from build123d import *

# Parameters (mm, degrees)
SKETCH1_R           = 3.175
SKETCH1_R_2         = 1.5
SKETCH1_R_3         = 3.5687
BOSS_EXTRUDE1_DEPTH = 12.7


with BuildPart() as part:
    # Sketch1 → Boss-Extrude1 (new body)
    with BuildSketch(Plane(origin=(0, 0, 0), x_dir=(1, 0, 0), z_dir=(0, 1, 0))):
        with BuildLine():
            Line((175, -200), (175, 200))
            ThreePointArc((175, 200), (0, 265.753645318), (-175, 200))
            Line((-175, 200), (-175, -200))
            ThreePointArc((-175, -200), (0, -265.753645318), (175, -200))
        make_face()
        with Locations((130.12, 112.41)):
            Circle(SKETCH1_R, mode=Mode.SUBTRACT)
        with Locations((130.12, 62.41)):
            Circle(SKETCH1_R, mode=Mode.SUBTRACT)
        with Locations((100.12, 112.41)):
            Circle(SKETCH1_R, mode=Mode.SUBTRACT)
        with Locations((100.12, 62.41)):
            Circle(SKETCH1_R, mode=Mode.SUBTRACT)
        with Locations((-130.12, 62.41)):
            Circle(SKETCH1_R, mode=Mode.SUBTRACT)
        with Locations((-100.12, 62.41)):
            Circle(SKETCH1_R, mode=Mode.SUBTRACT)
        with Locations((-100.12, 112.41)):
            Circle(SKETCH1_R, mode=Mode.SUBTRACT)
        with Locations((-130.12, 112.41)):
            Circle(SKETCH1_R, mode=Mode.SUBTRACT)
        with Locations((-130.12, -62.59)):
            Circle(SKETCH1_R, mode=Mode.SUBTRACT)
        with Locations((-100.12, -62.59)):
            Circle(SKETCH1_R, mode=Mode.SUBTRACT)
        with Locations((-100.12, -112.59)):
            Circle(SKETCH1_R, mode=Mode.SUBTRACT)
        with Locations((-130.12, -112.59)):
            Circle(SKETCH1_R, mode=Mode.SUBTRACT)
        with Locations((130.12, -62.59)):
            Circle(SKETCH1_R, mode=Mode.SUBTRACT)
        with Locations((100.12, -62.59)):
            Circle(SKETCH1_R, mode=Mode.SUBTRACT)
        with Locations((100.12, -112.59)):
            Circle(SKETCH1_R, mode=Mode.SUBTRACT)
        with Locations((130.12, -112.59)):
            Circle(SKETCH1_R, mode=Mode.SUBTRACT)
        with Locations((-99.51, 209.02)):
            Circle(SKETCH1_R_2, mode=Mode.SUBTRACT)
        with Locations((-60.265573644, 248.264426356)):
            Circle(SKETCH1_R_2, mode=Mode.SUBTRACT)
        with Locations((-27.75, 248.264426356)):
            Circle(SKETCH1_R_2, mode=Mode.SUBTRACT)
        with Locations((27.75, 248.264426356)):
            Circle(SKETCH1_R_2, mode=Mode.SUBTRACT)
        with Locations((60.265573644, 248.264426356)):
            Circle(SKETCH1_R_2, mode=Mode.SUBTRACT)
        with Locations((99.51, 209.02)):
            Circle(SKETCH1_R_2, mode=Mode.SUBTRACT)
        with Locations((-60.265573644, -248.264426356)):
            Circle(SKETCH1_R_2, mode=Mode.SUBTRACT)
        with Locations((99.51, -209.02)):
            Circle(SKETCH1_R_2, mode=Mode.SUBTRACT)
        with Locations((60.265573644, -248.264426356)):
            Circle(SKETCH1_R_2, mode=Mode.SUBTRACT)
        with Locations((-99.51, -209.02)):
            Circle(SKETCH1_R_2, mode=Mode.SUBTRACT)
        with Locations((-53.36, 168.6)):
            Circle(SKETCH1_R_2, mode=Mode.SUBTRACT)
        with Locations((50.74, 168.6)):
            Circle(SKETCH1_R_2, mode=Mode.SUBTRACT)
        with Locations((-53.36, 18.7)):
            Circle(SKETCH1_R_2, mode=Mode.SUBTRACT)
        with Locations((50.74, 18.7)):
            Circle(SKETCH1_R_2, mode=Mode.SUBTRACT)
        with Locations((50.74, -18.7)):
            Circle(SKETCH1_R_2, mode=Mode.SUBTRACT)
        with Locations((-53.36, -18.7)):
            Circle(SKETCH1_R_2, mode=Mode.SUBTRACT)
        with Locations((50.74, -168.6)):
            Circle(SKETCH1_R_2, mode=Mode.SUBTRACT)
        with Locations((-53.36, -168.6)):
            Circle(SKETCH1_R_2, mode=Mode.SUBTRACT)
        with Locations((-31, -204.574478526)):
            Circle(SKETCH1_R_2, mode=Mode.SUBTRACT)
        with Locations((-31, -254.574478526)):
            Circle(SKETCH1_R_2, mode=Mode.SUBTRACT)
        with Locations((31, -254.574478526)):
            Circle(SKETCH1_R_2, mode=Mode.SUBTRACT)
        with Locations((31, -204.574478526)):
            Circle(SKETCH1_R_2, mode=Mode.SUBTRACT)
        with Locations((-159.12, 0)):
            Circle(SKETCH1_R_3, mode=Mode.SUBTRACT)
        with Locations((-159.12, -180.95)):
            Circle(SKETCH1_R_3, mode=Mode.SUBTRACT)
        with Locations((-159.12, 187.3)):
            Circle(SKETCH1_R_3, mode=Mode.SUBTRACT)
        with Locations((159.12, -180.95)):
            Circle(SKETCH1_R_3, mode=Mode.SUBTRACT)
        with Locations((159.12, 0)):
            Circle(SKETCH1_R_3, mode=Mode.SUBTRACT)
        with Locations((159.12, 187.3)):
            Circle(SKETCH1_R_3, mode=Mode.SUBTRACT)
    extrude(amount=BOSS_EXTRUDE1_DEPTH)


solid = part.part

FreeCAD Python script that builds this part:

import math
import FreeCAD as App
import Part
import Sketcher
from FreeCAD import Vector
Q = App.Units.Quantity

doc = App.newDocument("Part")
params = doc.addObject("Spreadsheet::Sheet", "Params")
for row, (alias, value) in enumerate([
    ("sketch1_diameter", "0.25 in"),
    ("sketch1_diameter2", "0.281 in"),
    ("pad1_length", "0.5 in"),
], start=1):
    params.set(f"A{row}", alias)
    params.set(f"B{row}", "=" + value)
    params.setAlias(f"B{row}", alias)

body = doc.addObject("PartDesign::Body", "Body")

sketch1 = body.newObject("Sketcher::SketchObject", "Sketch")
sketch1.AttachmentSupport = (doc.getObject("XZ_Plane"), [""])
sketch1.MapMode = "FlatFace"
sketch1.addGeometry([
    Part.LineSegment(Vector(175, 200, 0), Vector(175, -200, 0)),
    Part.ArcOfCircle(Part.Circle(Vector(0, 0, 0), Vector(0, 0, 1), 265.8), math.radians(-131), math.radians(-49)),
    Part.LineSegment(Vector(-175, -200, 0), Vector(-175, 200, 0)),
    Part.ArcOfCircle(Part.Circle(Vector(0, 0, 0), Vector(0, 0, 1), 265.8), math.radians(49), math.radians(131)),
    Part.Circle(Vector(-99.5, 209, 0), Vector(0, 0, 1), 1.5),
    Part.Circle(Vector(-159.1, 180.9, 0), Vector(0, 0, 1), 3.6),
    Part.Circle(Vector(-60.3, 248.3, 0), Vector(0, 0, 1), 1.5),
    Part.Circle(Vector(-31, 254.6, 0), Vector(0, 0, 1), 1.5),
    Part.Circle(Vector(-31, 204.6, 0), Vector(0, 0, 1), 1.5),
    Part.Circle(Vector(-53.4, 168.6, 0), Vector(0, 0, 1), 1.5),
    Part.Circle(Vector(-130.1, 112.6, 0), Vector(0, 0, 1), 3.2),
    Part.Circle(Vector(-100.1, 112.6, 0), Vector(0, 0, 1), 3.2),
    Part.Circle(Vector(-130.1, 62.6, 0), Vector(0, 0, 1), 3.2),
    Part.Circle(Vector(-100.1, 62.6, 0), Vector(0, 0, 1), 3.2),
    Part.Circle(Vector(-53.4, 18.7, 0), Vector(0, 0, 1), 1.5),
    Part.Circle(Vector(31, 254.6, 0), Vector(0, 0, 1), 1.5),
    Part.Circle(Vector(31, 204.6, 0), Vector(0, 0, 1), 1.5),
    Part.Circle(Vector(60.3, 248.3, 0), Vector(0, 0, 1), 1.5),
    Part.Circle(Vector(50.7, 168.6, 0), Vector(0, 0, 1), 1.5),
    Part.Circle(Vector(99.5, 209, 0), Vector(0, 0, 1), 1.5),
    Part.Circle(Vector(159.1, 180.9, 0), Vector(0, 0, 1), 3.6),
    Part.Circle(Vector(50.7, 18.7, 0), Vector(0, 0, 1), 1.5),
    Part.Circle(Vector(100.1, 112.6, 0), Vector(0, 0, 1), 3.2),
    Part.Circle(Vector(130.1, 112.6, 0), Vector(0, 0, 1), 3.2),
    Part.Circle(Vector(100.1, 62.6, 0), Vector(0, 0, 1), 3.2),
    Part.Circle(Vector(130.1, 62.6, 0), Vector(0, 0, 1), 3.2),
    Part.Circle(Vector(-159.1, 0, 0), Vector(0, 0, 1), 3.6),
    Part.Circle(Vector(-130.1, -62.4, 0), Vector(0, 0, 1), 3.2),
    Part.Circle(Vector(-130.1, -112.4, 0), Vector(0, 0, 1), 3.2),
    Part.Circle(Vector(-100.1, -62.4, 0), Vector(0, 0, 1), 3.2),
    Part.Circle(Vector(-100.1, -112.4, 0), Vector(0, 0, 1), 3.2),
    Part.Circle(Vector(-53.4, -18.7, 0), Vector(0, 0, 1), 1.5),
    Part.Circle(Vector(-159.1, -187.3, 0), Vector(0, 0, 1), 3.6),
    Part.Circle(Vector(-99.5, -209, 0), Vector(0, 0, 1), 1.5),
    Part.Circle(Vector(-53.4, -168.6, 0), Vector(0, 0, 1), 1.5),
    Part.Circle(Vector(-60.3, -248.3, 0), Vector(0, 0, 1), 1.5),
    Part.Circle(Vector(-27.8, -248.3, 0), Vector(0, 0, 1), 1.5),
    Part.Circle(Vector(50.7, -18.7, 0), Vector(0, 0, 1), 1.5),
    Part.Circle(Vector(159.1, 0, 0), Vector(0, 0, 1), 3.6),
    Part.Circle(Vector(100.1, -62.4, 0), Vector(0, 0, 1), 3.2),
    Part.Circle(Vector(100.1, -112.4, 0), Vector(0, 0, 1), 3.2),
    Part.Circle(Vector(130.1, -62.4, 0), Vector(0, 0, 1), 3.2),
    Part.Circle(Vector(130.1, -112.4, 0), Vector(0, 0, 1), 3.2),
    Part.Circle(Vector(50.7, -168.6, 0), Vector(0, 0, 1), 1.5),
    Part.Circle(Vector(27.8, -248.3, 0), Vector(0, 0, 1), 1.5),
    Part.Circle(Vector(60.3, -248.3, 0), Vector(0, 0, 1), 1.5),
    Part.Circle(Vector(99.5, -209, 0), Vector(0, 0, 1), 1.5),
    Part.Circle(Vector(159.1, -187.3, 0), Vector(0, 0, 1), 3.6),
], False)
sketch1.addConstraint([
    Sketcher.Constraint("Coincident", 0, 2, 1, 2),
    Sketcher.Constraint("Coincident", 1, 1, 2, 1),
    Sketcher.Constraint("Coincident", 2, 2, 3, 2),
    Sketcher.Constraint("Coincident", 3, 1, 0, 1),
    Sketcher.Constraint("Vertical", 0),
    Sketcher.Constraint("Vertical", 2),
    Sketcher.Constraint("Coincident", 1, 3, -1, 1),
    Sketcher.Constraint("Coincident", 3, 3, -1, 1),
    Sketcher.Constraint("Equal", 1, 3),
    Sketcher.Constraint("Equal", 4, 6),
    Sketcher.Constraint("Equal", 6, 7),
    Sketcher.Constraint("Equal", 7, 8),
    Sketcher.Constraint("Equal", 8, 9),
    Sketcher.Constraint("Equal", 10, 11),
    Sketcher.Constraint("Equal", 11, 12),
    Sketcher.Constraint("Equal", 12, 13),
    Sketcher.Constraint("Equal", 9, 14),
    Sketcher.Constraint("Equal", 14, 15),
    Sketcher.Constraint("Equal", 15, 16),
    Sketcher.Constraint("Equal", 16, 17),
    Sketcher.Constraint("Equal", 17, 18),
    Sketcher.Constraint("Equal", 18, 19),
    Sketcher.Constraint("Equal", 5, 20),
    Sketcher.Constraint("Equal", 19, 21),
    Sketcher.Constraint("Equal", 13, 22),
    Sketcher.Constraint("Equal", 22, 23),
    Sketcher.Constraint("Equal", 23, 24),
    Sketcher.Constraint("Equal", 24, 25),
    Sketcher.Constraint("Equal", 20, 26),
    Sketcher.Constraint("Equal", 25, 27),
    Sketcher.Constraint("Equal", 27, 28),
    Sketcher.Constraint("Equal", 28, 29),
    Sketcher.Constraint("Equal", 29, 30),
    Sketcher.Constraint("Equal", 21, 31),
    Sketcher.Constraint("Equal", 26, 32),
    Sketcher.Constraint("Equal", 31, 33),
    Sketcher.Constraint("Equal", 33, 34),
    Sketcher.Constraint("Equal", 34, 35),
    Sketcher.Constraint("Equal", 35, 36),
    Sketcher.Constraint("Equal", 36, 37),
    Sketcher.Constraint("Equal", 32, 38),
    Sketcher.Constraint("Equal", 30, 39),
    Sketcher.Constraint("Equal", 39, 40),
    Sketcher.Constraint("Equal", 40, 41),
    Sketcher.Constraint("Equal", 41, 42),
    Sketcher.Constraint("Equal", 37, 43),
    Sketcher.Constraint("Equal", 43, 44),
    Sketcher.Constraint("Equal", 44, 45),
    Sketcher.Constraint("Equal", 45, 46),
    Sketcher.Constraint("Equal", 38, 47),
    Sketcher.Constraint("Symmetric", 19, 3, 33, 3, -1, 1),
    Sketcher.Constraint("Symmetric", 17, 3, 35, 3, -1, 1),
    Sketcher.Constraint("Symmetric", 26, 3, 38, 3, -1, 1),
    Sketcher.Constraint("Symmetric", 6, 3, 45, 3, -1, 1),
    Sketcher.Constraint("Symmetric", 4, 3, 46, 3, -1, 1),
    Sketcher.Constraint("Symmetric", 7, 3, 15, 3, -2),
    Sketcher.Constraint("Symmetric", 8, 3, 16, 3, -2),
    Sketcher.Constraint("Symmetric", 6, 3, 17, 3, -2),
    Sketcher.Constraint("Symmetric", 4, 3, 19, 3, -2),
    Sketcher.Constraint("Symmetric", 5, 3, 20, 3, -2),
    Sketcher.Constraint("Symmetric", 11, 3, 22, 3, -2),
    Sketcher.Constraint("Symmetric", 10, 3, 23, 3, -2),
    Sketcher.Constraint("Symmetric", 13, 3, 24, 3, -2),
    Sketcher.Constraint("Symmetric", 12, 3, 25, 3, -2),
    Sketcher.Constraint("Symmetric", 29, 3, 39, 3, -2),
    Sketcher.Constraint("Symmetric", 30, 3, 40, 3, -2),
    Sketcher.Constraint("Symmetric", 27, 3, 41, 3, -2),
    Sketcher.Constraint("Symmetric", 28, 3, 42, 3, -2),
    Sketcher.Constraint("Symmetric", 36, 3, 44, 3, -2),
    Sketcher.Constraint("Symmetric", 32, 3, 47, 3, -2),
    Sketcher.Constraint("Symmetric", 14, 3, 31, 3, -1),
    Sketcher.Constraint("Symmetric", 9, 3, 34, 3, -1),
    Sketcher.Constraint("Symmetric", 21, 3, 37, 3, -1),
    Sketcher.Constraint("Symmetric", 18, 3, 43, 3, -1),
    Sketcher.Constraint("PointOnObject", 26, 3, -1),
    Sketcher.Constraint("Horizontal", 10, 3, 11, 3),
    Sketcher.Constraint("Horizontal", 12, 3, 13, 3),
    Sketcher.Constraint("Horizontal", 9, 3, 18, 3),
    Sketcher.Constraint("Horizontal", 14, 3, 21, 3),
    Sketcher.Constraint("Horizontal", 27, 3, 29, 3),
    Sketcher.Constraint("Horizontal", 28, 3, 30, 3),
    Sketcher.Constraint("Horizontal", 35, 3, 36, 3),
    Sketcher.Constraint("Horizontal", 0, 2, 1, 1),
    Sketcher.Constraint("Vertical", 7, 3, 8, 3),
    Sketcher.Constraint("Vertical", 10, 3, 12, 3),
    Sketcher.Constraint("Vertical", 11, 3, 13, 3),
    Sketcher.Constraint("Vertical", 9, 3, 14, 3),
    Sketcher.Constraint("Vertical", 18, 3, 21, 3),
    Sketcher.Constraint("Vertical", 5, 3, 26, 3),
    Sketcher.Constraint("Vertical", 12, 3, 27, 3),
    Sketcher.Constraint("Vertical", 27, 3, 28, 3),
    Sketcher.Constraint("Vertical", 13, 3, 29, 3),
    Sketcher.Constraint("Vertical", 29, 3, 30, 3),
    Sketcher.Constraint("Vertical", 26, 3, 32, 3),
    Sketcher.Constraint("Diameter", 10, Q("0.25 in")),
    Sketcher.Constraint("Diameter", 5, Q("0.281 in")),
    Sketcher.Constraint("DistanceY", 0, 2, 47, 3, Q("0.5 in")),
    Sketcher.Constraint("Diameter", 4, 3.0),
    Sketcher.Constraint("DistanceY", 5, 3, 2, 2, Q("0.75 in")),
    Sketcher.Constraint("DistanceY", 0, 2, 0, 1, 400.0),
    Sketcher.Constraint("Radius", 1, 265.753645),
    Sketcher.Constraint("DistanceX", 4, 3, -1, 1, 99.51),
    Sketcher.Constraint("DistanceY", -1, 1, 4, 3, 209.02),
    Sketcher.Constraint("DistanceX", 5, 3, -1, 1, 159.12),
    Sketcher.Constraint("DistanceX", 7, 3, -1, 1, 31.0),
    Sketcher.Constraint("DistanceX", 9, 3, -1, 1, 53.36),
    Sketcher.Constraint("DistanceY", -1, 1, 9, 3, 168.6),
    Sketcher.Constraint("DistanceX", 10, 3, -1, 1, 130.12),
    Sketcher.Constraint("DistanceY", -1, 1, 10, 3, 112.59),
    Sketcher.Constraint("DistanceX", 11, 3, -1, 1, 100.12),
    Sketcher.Constraint("DistanceY", -1, 1, 12, 3, 62.59),
    Sketcher.Constraint("DistanceY", -1, 1, 14, 3, 18.7),
    Sketcher.Constraint("DistanceX", -1, 1, 18, 3, 50.74),
    Sketcher.Constraint("DistanceY", 27, 3, -1, 1, 62.41),
    Sketcher.Constraint("DistanceY", 28, 3, -1, 1, 112.41),
    Sketcher.Constraint("DistanceX", 36, 3, -1, 1, 27.75),
    Sketcher.Constraint("DistanceY", 8, 3, 7, 3, 50.0),
    Sketcher.Constraint("DistanceY", -1, 1, 7, 3, 254.574479),
    Sketcher.Constraint("DistanceX", 6, 3, -1, 1, 60.265574),
    Sketcher.Constraint("DistanceY", -1, 1, 6, 3, 248.264426),
])
sketch1.setExpression("Constraints[94]", "Params.sketch1_diameter")
sketch1.setExpression("Constraints[95]", "Params.sketch1_diameter2")
pad1 = body.newObject("PartDesign::Pad", "Pad")
pad1.Profile = sketch1
pad1.setExpression("Length", "Params.pad1_length")
pad1.Reversed = True

doc.recompute()
